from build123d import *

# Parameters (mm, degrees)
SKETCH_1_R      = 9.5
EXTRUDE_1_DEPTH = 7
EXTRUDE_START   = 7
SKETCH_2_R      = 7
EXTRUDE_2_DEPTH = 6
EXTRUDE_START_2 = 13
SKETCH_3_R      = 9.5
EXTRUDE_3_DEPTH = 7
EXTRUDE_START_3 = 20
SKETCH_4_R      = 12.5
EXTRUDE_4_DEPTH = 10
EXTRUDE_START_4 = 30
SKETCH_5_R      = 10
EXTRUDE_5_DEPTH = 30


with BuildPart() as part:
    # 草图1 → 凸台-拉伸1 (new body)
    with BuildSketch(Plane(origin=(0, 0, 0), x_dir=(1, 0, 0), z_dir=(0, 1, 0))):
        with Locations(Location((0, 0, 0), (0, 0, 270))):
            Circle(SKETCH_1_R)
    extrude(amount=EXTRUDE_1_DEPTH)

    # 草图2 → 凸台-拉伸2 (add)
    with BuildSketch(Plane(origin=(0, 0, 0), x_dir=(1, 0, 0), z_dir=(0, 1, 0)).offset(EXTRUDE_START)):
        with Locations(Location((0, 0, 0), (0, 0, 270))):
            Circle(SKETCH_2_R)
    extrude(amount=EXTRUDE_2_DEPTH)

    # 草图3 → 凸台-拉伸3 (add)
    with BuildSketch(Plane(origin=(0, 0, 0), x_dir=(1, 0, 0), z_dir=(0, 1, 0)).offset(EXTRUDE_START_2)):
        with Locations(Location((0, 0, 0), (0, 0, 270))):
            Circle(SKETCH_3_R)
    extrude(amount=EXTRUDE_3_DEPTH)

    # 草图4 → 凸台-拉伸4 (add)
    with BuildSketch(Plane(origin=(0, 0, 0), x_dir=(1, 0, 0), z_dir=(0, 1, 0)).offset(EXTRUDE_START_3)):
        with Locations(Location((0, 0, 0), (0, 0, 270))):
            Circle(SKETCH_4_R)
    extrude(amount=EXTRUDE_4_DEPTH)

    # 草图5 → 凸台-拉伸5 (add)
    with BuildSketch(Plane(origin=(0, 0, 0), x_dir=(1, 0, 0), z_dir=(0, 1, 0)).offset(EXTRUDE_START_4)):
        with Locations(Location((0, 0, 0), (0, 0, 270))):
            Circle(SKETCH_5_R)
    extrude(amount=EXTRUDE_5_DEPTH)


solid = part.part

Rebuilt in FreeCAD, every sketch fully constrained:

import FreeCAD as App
import Part
import Sketcher
Q = App.Units.Quantity

doc = App.newDocument("Part")
params = doc.addObject("Spreadsheet::Sheet", "Params")
for row, (alias, value) in enumerate([
    ("sketch1_diameter", "19 mm"),
    ("pad1_length", "7 mm"),
    ("sketch2_diameter", "14 mm"),
    ("pad2_length", "6 mm"),
    ("sketch3_diameter", "19 mm"),
    ("pad3_length", "7 mm"),
    ("sketch4_diameter", "25 mm"),
    ("pad4_length", "10 mm"),
    ("sketch5_diameter", "20 mm"),
    ("pad5_length", "30 mm"),
], start=1):
    params.set(f"A{row}", alias)
    params.set(f"B{row}", "=" + value)
    params.setAlias(f"B{row}", alias)

body = doc.addObject("PartDesign::Body", "Body")

# Sketch on XZ plane
sketch1 = body.newObject("Sketcher::SketchObject", "Sketch")
sketch1.AttachmentSupport = (doc.getObject("XZ_Plane"), [""])
sketch1.MapMode = "FlatFace"
sketch1.addGeometry(Part.Circle(App.Vector(0, 0, 0), App.Vector(0, 0, 1), 10), False)
sketch1.addConstraint([
    Sketcher.Constraint("Coincident", 0, 3, -1, 1),
    Sketcher.Constraint("Diameter", 0, Q("19 mm")),
])
sketch1.setExpression("Constraints[1]", "Params.sketch1_diameter")
pad1 = body.newObject("PartDesign::Pad", "Pad")
pad1.Profile = sketch1
pad1.setExpression("Length", "Params.pad1_length")
pad1.Reversed = True

# Sketch on XZ plane
sketch2 = body.newObject("Sketcher::SketchObject", "Sketch001")
sketch2.AttachmentSupport = (doc.getObject("XZ_Plane"), [""])
sketch2.MapMode = "FlatFace"
sketch2.AttachmentOffset = App.Placement(App.Vector(0, 0, -7), App.Rotation())
sketch2.addGeometry(Part.Circle(App.Vector(0, 0, 0), App.Vector(0, 0, 1), 7), False)
sketch2.addConstraint([
    Sketcher.Constraint("Coincident", 0, 3, -1, 1),
    Sketcher.Constraint("Diameter", 0, Q("14 mm")),
])
sketch2.setExpression("Constraints[1]", "Params.sketch2_diameter")
pad2 = body.newObject("PartDesign::Pad", "Pad001")
pad2.Profile = sketch2
pad2.setExpression("Length", "Params.pad2_length")
pad2.Reversed = True

# Sketch on XZ plane
sketch3 = body.newObject("Sketcher::SketchObject", "Sketch002")
sketch3.AttachmentSupport = (doc.getObject("XZ_Plane"), [""])
sketch3.MapMode = "FlatFace"
sketch3.AttachmentOffset = App.Placement(App.Vector(0, 0, -13), App.Rotation())
sketch3.addGeometry(Part.Circle(App.Vector(0, 0, 0), App.Vector(0, 0, 1), 10), False)
sketch3.addConstraint([
    Sketcher.Constraint("Coincident", 0, 3, -1, 1),
    Sketcher.Constraint("Diameter", 0, Q("19 mm")),
])
sketch3.setExpression("Constraints[1]", "Params.sketch3_diameter")
pad3 = body.newObject("PartDesign::Pad", "Pad002")
pad3.Profile = sketch3
pad3.setExpression("Length", "Params.pad3_length")
pad3.Reversed = True

# Sketch on XZ plane
sketch4 = body.newObject("Sketcher::SketchObject", "Sketch003")
sketch4.AttachmentSupport = (doc.getObject("XZ_Plane"), [""])
sketch4.MapMode = "FlatFace"
sketch4.AttachmentOffset = App.Placement(App.Vector(0, 0, -20), App.Rotation())
sketch4.addGeometry(Part.Circle(App.Vector(0, 0, 0), App.Vector(0, 0, 1), 12), False)
sketch4.addConstraint([
    Sketcher.Constraint("Coincident", 0, 3, -1, 1),
    Sketcher.Constraint("Diameter", 0, Q("25 mm")),
])
sketch4.setExpression("Constraints[1]", "Params.sketch4_diameter")
pad4 = body.newObject("PartDesign::Pad", "Pad003")
pad4.Profile = sketch4
pad4.setExpression("Length", "Params.pad4_length")
pad4.Reversed = True

# Sketch on XZ plane
sketch5 = body.newObject("Sketcher::SketchObject", "Sketch004")
sketch5.AttachmentSupport = (doc.getObject("XZ_Plane"), [""])
sketch5.MapMode = "FlatFace"
sketch5.AttachmentOffset = App.Placement(App.Vector(0, 0, -30), App.Rotation())
sketch5.addGeometry(Part.Circle(App.Vector(0, 0, 0), App.Vector(0, 0, 1), 10), False)
sketch5.addConstraint([
    Sketcher.Constraint("Coincident", 0, 3, -1, 1),
    Sketcher.Constraint("Diameter", 0, Q("20 mm")),
])
sketch5.setExpression("Constraints[1]", "Params.sketch5_diameter")
pad5 = body.newObject("PartDesign::Pad", "Pad004")
pad5.Profile = sketch5
pad5.setExpression("Length", "Params.pad5_length")
pad5.Reversed = True

doc.recompute()
